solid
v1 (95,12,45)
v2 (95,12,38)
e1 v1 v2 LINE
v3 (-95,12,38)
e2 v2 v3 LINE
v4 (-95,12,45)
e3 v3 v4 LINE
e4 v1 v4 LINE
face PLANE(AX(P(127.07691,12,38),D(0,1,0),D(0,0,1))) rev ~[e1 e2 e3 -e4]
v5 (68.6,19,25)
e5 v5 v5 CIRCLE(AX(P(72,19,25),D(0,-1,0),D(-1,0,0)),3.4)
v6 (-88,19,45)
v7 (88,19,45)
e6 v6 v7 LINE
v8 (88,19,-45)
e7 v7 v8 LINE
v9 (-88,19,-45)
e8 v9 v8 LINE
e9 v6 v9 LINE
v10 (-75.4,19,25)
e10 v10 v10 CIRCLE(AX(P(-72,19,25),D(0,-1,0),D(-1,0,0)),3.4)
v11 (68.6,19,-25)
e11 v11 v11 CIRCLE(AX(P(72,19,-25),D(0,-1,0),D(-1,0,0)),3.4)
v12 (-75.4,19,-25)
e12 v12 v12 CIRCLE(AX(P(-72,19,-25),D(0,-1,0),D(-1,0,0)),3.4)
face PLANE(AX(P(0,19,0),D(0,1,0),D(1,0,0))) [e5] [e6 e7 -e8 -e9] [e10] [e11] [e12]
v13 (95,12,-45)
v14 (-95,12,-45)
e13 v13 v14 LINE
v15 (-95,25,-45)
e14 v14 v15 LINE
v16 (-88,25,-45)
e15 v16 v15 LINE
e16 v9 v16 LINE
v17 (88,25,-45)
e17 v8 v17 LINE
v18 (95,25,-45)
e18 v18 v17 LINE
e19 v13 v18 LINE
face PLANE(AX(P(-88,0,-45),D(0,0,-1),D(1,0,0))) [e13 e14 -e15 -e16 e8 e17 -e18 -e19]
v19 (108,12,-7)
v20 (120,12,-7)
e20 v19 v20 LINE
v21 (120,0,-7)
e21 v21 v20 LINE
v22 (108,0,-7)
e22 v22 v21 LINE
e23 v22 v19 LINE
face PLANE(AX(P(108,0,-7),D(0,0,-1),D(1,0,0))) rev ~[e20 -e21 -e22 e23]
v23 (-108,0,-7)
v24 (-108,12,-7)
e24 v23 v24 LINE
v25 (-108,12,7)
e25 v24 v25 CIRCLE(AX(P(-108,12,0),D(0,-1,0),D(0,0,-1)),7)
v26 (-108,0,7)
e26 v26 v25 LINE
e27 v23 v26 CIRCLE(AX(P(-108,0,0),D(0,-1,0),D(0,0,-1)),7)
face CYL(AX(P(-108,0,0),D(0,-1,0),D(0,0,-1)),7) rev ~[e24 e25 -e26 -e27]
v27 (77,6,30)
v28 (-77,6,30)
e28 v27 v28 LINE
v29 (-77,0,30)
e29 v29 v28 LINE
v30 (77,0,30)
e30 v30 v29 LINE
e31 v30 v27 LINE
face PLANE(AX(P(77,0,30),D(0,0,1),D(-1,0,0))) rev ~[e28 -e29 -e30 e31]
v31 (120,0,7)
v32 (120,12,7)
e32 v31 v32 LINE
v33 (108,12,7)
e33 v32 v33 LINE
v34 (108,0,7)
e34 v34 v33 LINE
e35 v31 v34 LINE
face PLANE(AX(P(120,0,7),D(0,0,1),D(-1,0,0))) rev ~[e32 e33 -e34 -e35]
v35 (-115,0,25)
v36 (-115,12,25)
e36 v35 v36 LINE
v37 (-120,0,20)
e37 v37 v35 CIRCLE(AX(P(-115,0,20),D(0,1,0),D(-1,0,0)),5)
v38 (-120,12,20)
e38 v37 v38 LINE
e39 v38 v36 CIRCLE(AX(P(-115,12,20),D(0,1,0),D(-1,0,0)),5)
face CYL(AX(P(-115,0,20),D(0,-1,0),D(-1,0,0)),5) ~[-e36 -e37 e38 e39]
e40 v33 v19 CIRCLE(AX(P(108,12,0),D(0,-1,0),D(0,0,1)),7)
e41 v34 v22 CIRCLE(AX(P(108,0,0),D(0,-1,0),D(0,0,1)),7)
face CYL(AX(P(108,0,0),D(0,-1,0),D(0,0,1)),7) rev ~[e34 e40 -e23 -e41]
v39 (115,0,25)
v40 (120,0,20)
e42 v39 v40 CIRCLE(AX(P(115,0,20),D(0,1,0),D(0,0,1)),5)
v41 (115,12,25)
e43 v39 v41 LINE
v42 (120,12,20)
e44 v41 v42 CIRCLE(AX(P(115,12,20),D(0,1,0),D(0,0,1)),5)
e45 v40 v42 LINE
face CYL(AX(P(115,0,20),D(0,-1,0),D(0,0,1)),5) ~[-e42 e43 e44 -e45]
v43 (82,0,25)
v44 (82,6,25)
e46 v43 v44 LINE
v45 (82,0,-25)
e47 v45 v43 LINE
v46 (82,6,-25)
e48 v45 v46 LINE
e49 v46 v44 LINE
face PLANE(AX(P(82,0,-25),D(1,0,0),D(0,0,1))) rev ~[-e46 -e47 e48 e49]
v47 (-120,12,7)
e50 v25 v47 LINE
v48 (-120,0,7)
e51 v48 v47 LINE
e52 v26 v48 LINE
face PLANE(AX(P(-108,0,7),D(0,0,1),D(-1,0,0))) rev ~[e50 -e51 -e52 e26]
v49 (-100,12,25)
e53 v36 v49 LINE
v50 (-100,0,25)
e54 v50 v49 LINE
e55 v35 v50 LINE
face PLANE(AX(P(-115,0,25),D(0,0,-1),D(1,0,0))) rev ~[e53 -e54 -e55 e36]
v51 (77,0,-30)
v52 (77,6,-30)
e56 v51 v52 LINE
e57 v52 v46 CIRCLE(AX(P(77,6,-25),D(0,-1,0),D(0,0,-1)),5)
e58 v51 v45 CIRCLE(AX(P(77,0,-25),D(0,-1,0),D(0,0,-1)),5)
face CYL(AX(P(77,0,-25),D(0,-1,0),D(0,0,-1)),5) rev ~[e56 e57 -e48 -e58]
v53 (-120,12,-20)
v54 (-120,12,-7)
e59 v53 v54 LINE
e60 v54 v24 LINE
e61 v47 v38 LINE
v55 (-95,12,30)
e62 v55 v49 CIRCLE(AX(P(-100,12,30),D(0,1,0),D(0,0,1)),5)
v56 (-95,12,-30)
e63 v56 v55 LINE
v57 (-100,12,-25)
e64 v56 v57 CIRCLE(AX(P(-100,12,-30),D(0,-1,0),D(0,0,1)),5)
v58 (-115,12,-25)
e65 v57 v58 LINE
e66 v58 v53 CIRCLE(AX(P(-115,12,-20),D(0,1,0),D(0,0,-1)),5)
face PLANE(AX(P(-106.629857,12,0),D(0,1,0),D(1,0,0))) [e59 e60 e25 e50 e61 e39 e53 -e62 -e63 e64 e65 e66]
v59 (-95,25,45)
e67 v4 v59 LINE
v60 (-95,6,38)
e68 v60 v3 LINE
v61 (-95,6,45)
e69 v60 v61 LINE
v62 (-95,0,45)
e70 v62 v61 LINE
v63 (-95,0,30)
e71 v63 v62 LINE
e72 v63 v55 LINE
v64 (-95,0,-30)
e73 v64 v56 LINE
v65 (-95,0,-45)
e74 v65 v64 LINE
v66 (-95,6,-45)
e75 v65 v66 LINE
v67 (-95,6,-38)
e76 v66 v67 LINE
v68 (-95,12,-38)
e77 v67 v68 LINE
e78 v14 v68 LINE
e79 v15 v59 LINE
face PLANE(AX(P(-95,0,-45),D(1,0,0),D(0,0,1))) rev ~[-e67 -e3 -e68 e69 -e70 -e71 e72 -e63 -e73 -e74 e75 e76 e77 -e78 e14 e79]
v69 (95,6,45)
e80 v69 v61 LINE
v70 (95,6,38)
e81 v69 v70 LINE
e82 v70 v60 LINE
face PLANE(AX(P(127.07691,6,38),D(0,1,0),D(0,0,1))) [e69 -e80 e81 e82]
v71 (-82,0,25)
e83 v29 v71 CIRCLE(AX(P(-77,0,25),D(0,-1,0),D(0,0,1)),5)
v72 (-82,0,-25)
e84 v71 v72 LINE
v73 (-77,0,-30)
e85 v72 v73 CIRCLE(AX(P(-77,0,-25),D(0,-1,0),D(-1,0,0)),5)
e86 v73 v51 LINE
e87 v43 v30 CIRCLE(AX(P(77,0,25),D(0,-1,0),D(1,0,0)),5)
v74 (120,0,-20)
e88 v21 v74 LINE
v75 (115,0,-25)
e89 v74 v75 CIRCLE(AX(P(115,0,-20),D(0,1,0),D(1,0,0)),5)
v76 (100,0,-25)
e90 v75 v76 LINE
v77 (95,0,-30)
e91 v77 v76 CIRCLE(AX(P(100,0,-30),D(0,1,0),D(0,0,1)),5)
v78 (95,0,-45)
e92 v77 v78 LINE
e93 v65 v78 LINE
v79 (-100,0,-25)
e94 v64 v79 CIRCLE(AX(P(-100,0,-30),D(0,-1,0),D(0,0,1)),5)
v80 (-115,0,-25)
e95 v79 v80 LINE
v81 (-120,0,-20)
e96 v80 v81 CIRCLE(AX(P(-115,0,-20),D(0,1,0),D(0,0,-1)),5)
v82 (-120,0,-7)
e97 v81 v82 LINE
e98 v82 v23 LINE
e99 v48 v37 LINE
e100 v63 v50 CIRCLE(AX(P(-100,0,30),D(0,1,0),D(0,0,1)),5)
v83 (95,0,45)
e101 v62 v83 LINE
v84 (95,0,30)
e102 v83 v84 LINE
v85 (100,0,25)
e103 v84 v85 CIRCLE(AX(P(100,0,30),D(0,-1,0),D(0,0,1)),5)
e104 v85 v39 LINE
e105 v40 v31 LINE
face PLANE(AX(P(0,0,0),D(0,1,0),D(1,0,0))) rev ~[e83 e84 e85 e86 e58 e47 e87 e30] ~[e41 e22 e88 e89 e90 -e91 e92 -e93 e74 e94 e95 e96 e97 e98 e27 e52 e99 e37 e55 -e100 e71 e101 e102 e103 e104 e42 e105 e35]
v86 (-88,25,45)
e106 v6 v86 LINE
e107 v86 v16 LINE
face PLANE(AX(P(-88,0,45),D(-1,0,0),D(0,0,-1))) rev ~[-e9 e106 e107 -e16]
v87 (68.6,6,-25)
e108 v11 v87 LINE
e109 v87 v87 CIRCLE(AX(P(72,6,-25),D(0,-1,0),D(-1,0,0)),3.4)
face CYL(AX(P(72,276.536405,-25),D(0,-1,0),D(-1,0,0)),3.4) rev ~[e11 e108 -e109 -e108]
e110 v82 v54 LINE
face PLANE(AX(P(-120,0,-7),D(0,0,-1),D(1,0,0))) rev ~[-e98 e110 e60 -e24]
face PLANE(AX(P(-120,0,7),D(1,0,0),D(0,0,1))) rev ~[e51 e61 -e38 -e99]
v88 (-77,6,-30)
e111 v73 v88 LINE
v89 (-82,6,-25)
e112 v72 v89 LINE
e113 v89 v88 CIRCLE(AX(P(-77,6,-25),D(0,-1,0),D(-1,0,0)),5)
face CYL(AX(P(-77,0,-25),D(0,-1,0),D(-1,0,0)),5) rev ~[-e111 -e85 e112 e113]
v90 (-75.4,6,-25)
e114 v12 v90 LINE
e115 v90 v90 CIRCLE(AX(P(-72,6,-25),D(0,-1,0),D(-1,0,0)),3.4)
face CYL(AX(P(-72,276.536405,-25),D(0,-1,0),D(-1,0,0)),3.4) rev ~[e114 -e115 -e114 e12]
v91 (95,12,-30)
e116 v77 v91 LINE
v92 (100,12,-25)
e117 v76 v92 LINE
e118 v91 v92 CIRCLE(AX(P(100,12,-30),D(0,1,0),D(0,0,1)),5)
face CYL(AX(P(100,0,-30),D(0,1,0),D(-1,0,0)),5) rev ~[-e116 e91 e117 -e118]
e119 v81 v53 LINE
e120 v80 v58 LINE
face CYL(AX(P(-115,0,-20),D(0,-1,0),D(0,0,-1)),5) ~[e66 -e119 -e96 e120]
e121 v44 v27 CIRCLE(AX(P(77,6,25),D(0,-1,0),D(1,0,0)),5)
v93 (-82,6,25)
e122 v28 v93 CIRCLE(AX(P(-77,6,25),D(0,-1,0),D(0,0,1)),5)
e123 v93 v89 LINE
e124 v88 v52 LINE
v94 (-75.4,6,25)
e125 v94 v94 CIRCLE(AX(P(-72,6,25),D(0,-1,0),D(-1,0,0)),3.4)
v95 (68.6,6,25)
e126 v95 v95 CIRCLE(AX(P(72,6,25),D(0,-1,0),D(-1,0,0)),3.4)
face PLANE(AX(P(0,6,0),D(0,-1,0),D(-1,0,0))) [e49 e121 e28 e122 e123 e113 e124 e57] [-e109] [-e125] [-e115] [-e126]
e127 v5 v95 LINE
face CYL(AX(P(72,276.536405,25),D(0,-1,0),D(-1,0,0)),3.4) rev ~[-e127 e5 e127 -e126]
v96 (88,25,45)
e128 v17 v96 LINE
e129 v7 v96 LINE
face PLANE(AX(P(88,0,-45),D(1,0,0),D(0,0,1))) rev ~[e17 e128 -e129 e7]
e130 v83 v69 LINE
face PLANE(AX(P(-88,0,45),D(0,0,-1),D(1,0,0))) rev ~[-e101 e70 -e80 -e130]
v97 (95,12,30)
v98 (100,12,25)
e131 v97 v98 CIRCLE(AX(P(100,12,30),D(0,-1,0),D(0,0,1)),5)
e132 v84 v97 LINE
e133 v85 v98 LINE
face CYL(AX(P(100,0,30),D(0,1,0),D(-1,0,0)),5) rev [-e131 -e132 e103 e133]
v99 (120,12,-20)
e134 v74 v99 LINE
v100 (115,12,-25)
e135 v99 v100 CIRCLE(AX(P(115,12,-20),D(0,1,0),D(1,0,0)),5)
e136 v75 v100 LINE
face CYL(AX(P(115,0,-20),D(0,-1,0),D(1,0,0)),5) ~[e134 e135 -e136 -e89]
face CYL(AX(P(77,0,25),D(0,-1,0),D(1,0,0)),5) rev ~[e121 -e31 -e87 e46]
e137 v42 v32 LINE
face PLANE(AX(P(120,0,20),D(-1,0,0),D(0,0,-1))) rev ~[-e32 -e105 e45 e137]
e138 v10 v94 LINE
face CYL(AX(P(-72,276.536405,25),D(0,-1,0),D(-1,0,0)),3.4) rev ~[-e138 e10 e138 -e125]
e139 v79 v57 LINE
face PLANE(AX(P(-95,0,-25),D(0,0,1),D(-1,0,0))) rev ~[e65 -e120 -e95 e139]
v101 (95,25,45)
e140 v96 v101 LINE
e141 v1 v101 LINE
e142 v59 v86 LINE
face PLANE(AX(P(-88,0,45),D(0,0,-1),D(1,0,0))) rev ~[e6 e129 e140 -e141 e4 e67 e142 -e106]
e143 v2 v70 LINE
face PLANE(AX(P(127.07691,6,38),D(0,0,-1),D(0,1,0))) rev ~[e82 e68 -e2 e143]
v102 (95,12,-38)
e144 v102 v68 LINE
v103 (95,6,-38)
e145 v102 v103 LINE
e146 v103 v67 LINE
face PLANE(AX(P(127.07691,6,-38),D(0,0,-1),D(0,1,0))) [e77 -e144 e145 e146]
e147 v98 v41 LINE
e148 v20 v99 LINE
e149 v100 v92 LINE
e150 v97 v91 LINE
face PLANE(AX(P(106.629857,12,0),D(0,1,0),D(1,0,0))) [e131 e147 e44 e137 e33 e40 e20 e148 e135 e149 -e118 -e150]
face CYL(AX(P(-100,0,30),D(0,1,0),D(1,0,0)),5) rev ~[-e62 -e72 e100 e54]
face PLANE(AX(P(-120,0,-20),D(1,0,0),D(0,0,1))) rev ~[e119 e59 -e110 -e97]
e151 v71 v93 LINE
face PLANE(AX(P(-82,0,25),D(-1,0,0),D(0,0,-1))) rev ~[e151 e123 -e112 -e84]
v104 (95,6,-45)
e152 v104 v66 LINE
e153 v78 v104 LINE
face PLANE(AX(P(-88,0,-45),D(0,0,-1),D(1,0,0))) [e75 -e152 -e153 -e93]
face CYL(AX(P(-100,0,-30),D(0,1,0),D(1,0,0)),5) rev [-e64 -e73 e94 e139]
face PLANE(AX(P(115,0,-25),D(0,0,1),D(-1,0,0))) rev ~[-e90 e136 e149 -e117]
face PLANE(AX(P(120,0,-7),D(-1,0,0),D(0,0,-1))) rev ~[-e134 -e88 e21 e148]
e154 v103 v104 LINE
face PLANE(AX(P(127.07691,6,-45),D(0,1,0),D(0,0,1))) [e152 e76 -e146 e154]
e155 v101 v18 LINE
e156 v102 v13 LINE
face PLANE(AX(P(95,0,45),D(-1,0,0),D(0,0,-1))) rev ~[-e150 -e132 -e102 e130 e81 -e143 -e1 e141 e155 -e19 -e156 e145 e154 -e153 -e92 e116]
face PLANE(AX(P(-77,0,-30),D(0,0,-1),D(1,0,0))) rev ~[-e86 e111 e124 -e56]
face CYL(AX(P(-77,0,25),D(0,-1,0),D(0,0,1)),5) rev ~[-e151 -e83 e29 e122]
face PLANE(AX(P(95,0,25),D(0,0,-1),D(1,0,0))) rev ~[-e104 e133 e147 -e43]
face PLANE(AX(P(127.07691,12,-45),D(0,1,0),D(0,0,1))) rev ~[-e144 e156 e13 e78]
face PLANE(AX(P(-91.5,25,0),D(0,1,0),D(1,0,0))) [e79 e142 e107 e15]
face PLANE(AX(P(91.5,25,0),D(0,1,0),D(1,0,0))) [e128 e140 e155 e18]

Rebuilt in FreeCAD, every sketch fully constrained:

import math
import FreeCAD as App
import Part
import Sketcher

V = App.Vector
Q = App.Units.Quantity


def edges_at(feature, points):
    """Names of the edges that pass closest to the given points."""
    edges = feature.Shape.Edges
    near = lambda p: min(range(len(edges)), key=lambda i: edges[i].distToShape(Part.Vertex(*p))[0])
    return sorted({f"Edge{near(p) + 1}" for p in points})


def add_polygon(sketch, points):
    """Adds a closed chain of lines whose ends are joined by coincident constraints."""
    first, n = sketch.GeometryCount, len(points)
    for a, b in zip(points, points[1:] + points[:1]):
        sketch.addGeometry(Part.LineSegment(App.Vector(*a, 0), App.Vector(*b, 0)), False)
    for i in range(n):
        sketch.addConstraint(Sketcher.Constraint("Coincident", first + i, 2, first + (i + 1) % n, 1))

doc = App.newDocument("Part")
body = doc.addObject("PartDesign::Body", "Body")

# Sketch on XZ plane
sketch1 = body.newObject("Sketcher::SketchObject", "Sketch")
sketch1.AttachmentSupport = (doc.getObject("XZ_Plane"), [""])
sketch1.MapMode = "FlatFace"
add_polygon(sketch1, [(-95, -45), (-95, 45), (-88, 45), (-88, -45)])  # lines 0-3
sketch1.addConstraint([
    Sketcher.Constraint("Vertical", 0),
    Sketcher.Constraint("Horizontal", 1),
    Sketcher.Constraint("Vertical", 2),
    Sketcher.Constraint("Horizontal", 3),
    Sketcher.Constraint("DistanceX", 1, 1, 1, 2, Q("7 mm")),
    Sketcher.Constraint("DistanceY", 0, 1, 0, 2, Q("90 mm")),
    Sketcher.Constraint("DistanceX", 0, 2, -1, 1, Q("95 mm")),
    Sketcher.Constraint("DistanceY", -1, 1, 0, 2, Q("45 mm")),
])
pad1 = body.newObject("PartDesign::Pad", "Pad")
pad1.Profile = sketch1
pad1.Length = 25
pad1.Reversed = True
body2 = doc.addObject("PartDesign::Body", "Body001")

# Sketch on XZ plane
sketch2 = body2.newObject("Sketcher::SketchObject", "Sketch001")
sketch2.AttachmentSupport = (doc.getObject("XZ_Plane001"), [""])
sketch2.MapMode = "FlatFace"
add_polygon(sketch2, [(95, -45), (88, -45), (88, 45), (95, 45)])  # lines 0-3
sketch2.addConstraint([
    Sketcher.Constraint("Horizontal", 0),
    Sketcher.Constraint("Vertical", 1),
    Sketcher.Constraint("Horizontal", 2),
    Sketcher.Constraint("Vertical", 3),
    Sketcher.Constraint("DistanceX", 0, 2, 0, 1, Q("7 mm")),
    Sketcher.Constraint("DistanceY", 1, 1, 1, 2, Q("90 mm")),
    Sketcher.Constraint("DistanceX", -1, 1, 0, 2, Q("88 mm")),
    Sketcher.Constraint("DistanceY", 0, 2, -1, 1, Q("45 mm")),
])
pad2 = body2.newObject("PartDesign::Pad", "Pad001")
pad2.Profile = sketch2
pad2.Length = 25
pad2.Reversed = True
body.AllowCompound = True
doc.recompute()

boolean = body.newObject("PartDesign::Boolean", "Boolean")
boolean.Type = "Fuse"
boolean.addObjects([body2])

# Sketch on XZ plane
sketch3 = body.newObject("Sketcher::SketchObject", "Sketch002")
sketch3.AttachmentSupport = (doc.getObject("XZ_Plane"), [""])
sketch3.MapMode = "FlatFace"
add_polygon(sketch3, [(-88, -45), (-88, 45), (88, 45), (88, -45)])  # lines 0-3
sketch3.addConstraint([
    Sketcher.Constraint("Vertical", 0),
    Sketcher.Constraint("Horizontal", 1),
    Sketcher.Constraint("Vertical", 2),
    Sketcher.Constraint("Horizontal", 3),
    Sketcher.Constraint("Symmetric", 0, 2, 2, 2, -1, 1),
    Sketcher.Constraint("DistanceX", 1, 1, 1, 2, Q("176 mm")),
    Sketcher.Constraint("DistanceY", 0, 1, 0, 2, Q("90 mm")),
])
pad3 = body.newObject("PartDesign::Pad", "Pad002")
pad3.Profile = sketch3
pad3.Length = 19
pad3.Reversed = True

# Sketch on XZ plane
sketch4 = body.newObject("Sketcher::SketchObject", "Sketch003")
sketch4.AttachmentSupport = (doc.getObject("XZ_Plane"), [""])
sketch4.MapMode = "FlatFace"
sketch4.addGeometry([
    Part.LineSegment(V(115, -25, 0), V(95, -25, 0)),  # 0
    Part.LineSegment(V(95, -25, 0), V(95, 25, 0)),  # 1
    Part.LineSegment(V(95, 25, 0), V(115, 25, 0)),  # 2
    Part.ArcOfCircle(Part.Circle(V(115, 20, 0), V(0, 0, 1), 5), math.radians(0), math.radians(90)),  # 3
    Part.LineSegment(V(120, 20, 0), V(120, 7, 0)),  # 4
    Part.LineSegment(V(120, 7, 0), V(108, 7, 0)),  # 5
    Part.ArcOfCircle(Part.Circle(V(108, 0, 0), V(0, 0, 1), 7), math.radians(90), math.radians(270)),  # 6
    Part.LineSegment(V(108, -7, 0), V(120, -7, 0)),  # 7
    Part.LineSegment(V(120, -7, 0), V(120, -20, 0)),  # 8
    Part.ArcOfCircle(Part.Circle(V(115, -20, 0), V(0, 0, 1), 5), math.radians(-90), math.radians(0)),  # 9
    Part.LineSegment(V(-95, 25, 0), V(-95, -25, 0)),  # 10
    Part.LineSegment(V(-95, -25, 0), V(-115, -25, 0)),  # 11
    Part.ArcOfCircle(Part.Circle(V(-115, -20, 0), V(0, 0, 1), 5), math.radians(180), math.radians(270)),  # 12
    Part.LineSegment(V(-120, -20, 0), V(-120, -7, 0)),  # 13
    Part.LineSegment(V(-120, -7, 0), V(-108, -7, 0)),  # 14
    Part.ArcOfCircle(Part.Circle(V(-108, 0, 0), V(0, 0, 1), 7), math.radians(-90), math.radians(90)),  # 15
    Part.LineSegment(V(-108, 7, 0), V(-120, 7, 0)),  # 16
    Part.LineSegment(V(-120, 7, 0), V(-120, 20, 0)),  # 17
    Part.ArcOfCircle(Part.Circle(V(-115, 20, 0), V(0, 0, 1), 5), math.radians(90), math.radians(180)),  # 18
    Part.LineSegment(V(-115, 25, 0), V(-95, 25, 0)),  # 19
], False)
sketch4.addConstraint([
    Sketcher.Constraint("Coincident", 0, 2, 1, 1),
    Sketcher.Constraint("Coincident", 1, 2, 2, 1),
    Sketcher.Constraint("Tangent", 2, 2, 3, 2),
    Sketcher.Constraint("Tangent", 3, 1, 4, 1),
    Sketcher.Constraint("Coincident", 4, 2, 5, 1),
    Sketcher.Constraint("Tangent", 5, 2, 6, 1),
    Sketcher.Constraint("Tangent", 6, 2, 7, 1),
    Sketcher.Constraint("Coincident", 7, 2, 8, 1),
    Sketcher.Constraint("Tangent", 8, 2, 9, 2),
    Sketcher.Constraint("Tangent", 9, 1, 0, 1),
    Sketcher.Constraint("Coincident", 10, 2, 11, 1),
    Sketcher.Constraint("Tangent", 11, 2, 12, 2),
    Sketcher.Constraint("Tangent", 12, 1, 13, 1),
    Sketcher.Constraint("Coincident", 13, 2, 14, 1),
    Sketcher.Constraint("Tangent", 14, 2, 15, 1),
    Sketcher.Constraint("Tangent", 15, 2, 16, 1),
    Sketcher.Constraint("Coincident", 16, 2, 17, 1),
    Sketcher.Constraint("Tangent", 17, 2, 18, 2),
    Sketcher.Constraint("Tangent", 18, 1, 19, 1),
    Sketcher.Constraint("Coincident", 19, 2, 10, 1),
    Sketcher.Constraint("Horizontal", 0),
    Sketcher.Constraint("Vertical", 1),
    Sketcher.Constraint("Horizontal", 2),
    Sketcher.Constraint("Vertical", 4),
    Sketcher.Constraint("Horizontal", 5),
    Sketcher.Constraint("Horizontal", 7),
    Sketcher.Constraint("Vertical", 8),
    Sketcher.Constraint("Vertical", 10),
    Sketcher.Constraint("Horizontal", 11),
    Sketcher.Constraint("Vertical", 13),
    Sketcher.Constraint("Horizontal", 14),
    Sketcher.Constraint("Horizontal", 16),
    Sketcher.Constraint("Vertical", 17),
    Sketcher.Constraint("Horizontal", 19),
    Sketcher.Constraint("Equal", 3, 9),
    Sketcher.Constraint("Equal", 9, 12),
    Sketcher.Constraint("Equal", 6, 15),
    Sketcher.Constraint("Equal", 12, 18),
    Sketcher.Constraint("Symmetric", 3, 3, 12, 3, -1, 1),
    Sketcher.Constraint("Symmetric", 6, 3, 15, 3, -1, 1),
    Sketcher.Constraint("Symmetric", 9, 3, 18, 3, -1, 1),
    Sketcher.Constraint("Symmetric", 9, 3, 12, 3, -2),
    Sketcher.Constraint("PointOnObject", 6, 3, -1),
    Sketcher.Constraint("Equal", 2, 11),
    Sketcher.Constraint("Radius", 3, Q("5 mm")),
    Sketcher.Constraint("Radius", 6, Q("7 mm")),
    Sketcher.Constraint("DistanceX", 0, 2, 0, 1, Q("20 mm")),
    Sketcher.Constraint("DistanceX", 5, 2, 5, 1, Q("12 mm")),
    Sketcher.Constraint("DistanceY", 1, 1, 1, 2, Q("50 mm")),
    Sketcher.Constraint("DistanceX", -1, 1, 3, 3, Q("115 mm")),
])
pad4 = body.newObject("PartDesign::Pad", "Pad003")
pad4.Profile = sketch4
pad4.Length = 12
pad4.Reversed = True
doc.recompute()

fillet = body.newObject("PartDesign::Fillet", "Fillet")
fillet.Base = (pad4, edges_at(pad4, [
    (95, 6, -25),
    (95, 6, 25),
    (-95, 6, 25),
    (-95, 6, -25),
]))
fillet.Radius = 5

# Sketch on XZ plane
sketch5 = body.newObject("Sketcher::SketchObject", "Sketch004")
sketch5.AttachmentSupport = (doc.getObject("XZ_Plane"), [""])
sketch5.MapMode = "FlatFace"
sketch5.addGeometry([
    Part.ArcOfCircle(Part.Circle(V(-77, -25, 0), V(0, 0, 1), 5), math.radians(180), math.radians(270)),  # 0
    Part.LineSegment(V(-82, -25, 0), V(-82, 25, 0)),  # 1
    Part.ArcOfCircle(Part.Circle(V(-77, 25, 0), V(0, 0, 1), 5), math.radians(90), math.radians(180)),  # 2
    Part.LineSegment(V(-77, 30, 0), V(77, 30, 0)),  # 3
    Part.ArcOfCircle(Part.Circle(V(77, 25, 0), V(0, 0, 1), 5), math.radians(0), math.radians(90)),  # 4
    Part.LineSegment(V(82, 25, 0), V(82, -25, 0)),  # 5
    Part.ArcOfCircle(Part.Circle(V(77, -25, 0), V(0, 0, 1), 5), math.radians(-90), math.radians(0)),  # 6
    Part.LineSegment(V(77, -30, 0), V(-77, -30, 0)),  # 7
], False)
sketch5.addConstraint([
    Sketcher.Constraint("Tangent", 0, 1, 1, 1),
    Sketcher.Constraint("Tangent", 1, 2, 2, 2),
    Sketcher.Constraint("Tangent", 2, 1, 3, 1),
    Sketcher.Constraint("Tangent", 3, 2, 4, 2),
    Sketcher.Constraint("Tangent", 4, 1, 5, 1),
    Sketcher.Constraint("Tangent", 5, 2, 6, 2),
    Sketcher.Constraint("Tangent", 6, 1, 7, 1),
    Sketcher.Constraint("Tangent", 7, 2, 0, 2),
    Sketcher.Constraint("Vertical", 1),
    Sketcher.Constraint("Horizontal", 3),
    Sketcher.Constraint("Vertical", 5),
    Sketcher.Constraint("Horizontal", 7),
    Sketcher.Constraint("Equal", 0, 2),
    Sketcher.Constraint("Equal", 2, 4),
    Sketcher.Constraint("Equal", 4, 6),
    Sketcher.Constraint("Symmetric", 0, 3, 4, 3, -1, 1),
    Sketcher.Constraint("Radius", 0, Q("5 mm")),
    Sketcher.Constraint("DistanceX", 3, 1, 3, 2, Q("154 mm")),
    Sketcher.Constraint("DistanceY", 1, 1, 1, 2, Q("50 mm")),
])
pocket1 = body.newObject("PartDesign::Pocket", "Pocket")
pocket1.Profile = sketch5
pocket1.Length = 6

# Sketch on YZ plane
sketch6 = body.newObject("Sketcher::SketchObject", "Sketch005")
sketch6.AttachmentSupport = (doc.getObject("YZ_Plane"), [""])
sketch6.MapMode = "FlatFace"
sketch6.AttachmentOffset = App.Placement(V(0, 0, -95), App.Rotation())
add_polygon(sketch6, [(12, 38), (6, 38), (6, 45), (12, 45)])  # lines 0-3
add_polygon(sketch6, [(12, -45), (6, -45), (6, -38), (12, -38)])  # lines 4-7
sketch6.addConstraint([
    Sketcher.Constraint("Horizontal", 0),
    Sketcher.Constraint("Vertical", 1),
    Sketcher.Constraint("Horizontal", 2),
    Sketcher.Constraint("Vertical", 3),
    Sketcher.Constraint("Horizontal", 4),
    Sketcher.Constraint("Vertical", 5),
    Sketcher.Constraint("Horizontal", 6),
    Sketcher.Constraint("Vertical", 7),
    Sketcher.Constraint("Symmetric", 1, 2, 4, 2, -1),
    Sketcher.Constraint("Symmetric", 3, 2, 6, 2, -1),
    Sketcher.Constraint("DistanceX", 0, 2, 0, 1, Q("6 mm")),
    Sketcher.Constraint("DistanceY", 1, 1, 1, 2, Q("7 mm")),
    Sketcher.Constraint("DistanceX", -1, 1, 0, 2, Q("6 mm")),
    Sketcher.Constraint("DistanceY", -1, 1, 0, 2, Q("38 mm")),
])
pocket2 = body.newObject("PartDesign::Pocket", "Pocket001")
pocket2.Profile = sketch6
pocket2.Type = "ThroughAll"
pocket2.Midplane = True

# Sketch on XZ plane
sketch7 = body.newObject("Sketcher::SketchObject", "Sketch006")
sketch7.AttachmentSupport = (doc.getObject("XZ_Plane"), [""])
sketch7.MapMode = "FlatFace"
sketch7.AttachmentOffset = App.Placement(V(0, 0, -19), App.Rotation())
sketch7.addGeometry([
    Part.Circle(V(-72, -25, 0), V(0, 0, 1), 3.4),
    Part.Circle(V(72, -25, 0), V(0, 0, 1), 3.4),
    Part.Circle(V(72, 25, 0), V(0, 0, 1), 3.4),
    Part.Circle(V(-72, 25, 0), V(0, 0, 1), 3.4),
], False)
sketch7.addConstraint([
    Sketcher.Constraint("Equal", 0, 1),
    Sketcher.Constraint("Equal", 1, 2),
    Sketcher.Constraint("Equal", 2, 3),
    Sketcher.Constraint("Symmetric", 0, 3, 2, 3, -1, 1),
    Sketcher.Constraint("Symmetric", 1, 3, 3, 3, -1, 1),
    Sketcher.Constraint("Symmetric", 0, 3, 1, 3, -2),
    Sketcher.Constraint("Diameter", 0, Q("6.8 mm")),
    Sketcher.Constraint("DistanceX", 0, 3, -1, 1, Q("72 mm")),
    Sketcher.Constraint("DistanceY", 0, 3, -1, 1, Q("25 mm")),
])
doc.recompute()
hole = body.newObject("PartDesign::Hole", "Hole")
hole.Profile = sketch7
hole.ThreadType = "None"
hole.Diameter = 6.8
hole.DepthType = "ThroughAll"
hole.Reversed = True

doc.recompute()
